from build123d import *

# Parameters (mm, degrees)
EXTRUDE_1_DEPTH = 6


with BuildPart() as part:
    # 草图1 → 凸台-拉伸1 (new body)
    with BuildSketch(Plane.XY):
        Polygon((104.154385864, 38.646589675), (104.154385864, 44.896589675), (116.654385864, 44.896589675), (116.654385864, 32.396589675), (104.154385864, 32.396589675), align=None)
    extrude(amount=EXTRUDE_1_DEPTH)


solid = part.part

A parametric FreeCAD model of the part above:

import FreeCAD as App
import Part
import Sketcher
from FreeCAD import Vector
Q = App.Units.Quantity

doc = App.newDocument("Part")
body = doc.addObject("PartDesign::Body", "Body")

# Sketch on XY plane
sketch1 = body.newObject("Sketcher::SketchObject", "Sketch")
sketch1.AttachmentSupport = (doc.getObject("XY_Plane"), [""])
sketch1.MapMode = "FlatFace"
sketch1.addGeometry([
    Part.LineSegment(Vector(104, 45, 0), Vector(104, 32, 0)),
    Part.LineSegment(Vector(104, 32, 0), Vector(117, 32, 0)),
    Part.LineSegment(Vector(117, 32, 0), Vector(117, 45, 0)),
    Part.LineSegment(Vector(117, 45, 0), Vector(104, 45, 0)),
], False)
sketch1.addConstraint([
    Sketcher.Constraint("Coincident", 0, 2, 1, 1),
    Sketcher.Constraint("Coincident", 1, 2, 2, 1),
    Sketcher.Constraint("Coincident", 2, 2, 3, 1),
    Sketcher.Constraint("Coincident", 3, 2, 0, 1),
    Sketcher.Constraint("Vertical", 0),
    Sketcher.Constraint("Horizontal", 1),
    Sketcher.Constraint("Vertical", 2),
    Sketcher.Constraint("Horizontal", 3),
    Sketcher.Constraint("Equal", 3, 0),
    Sketcher.Constraint("DistanceX", 1, 1, 1, 2, Q("12.5 mm")),
    Sketcher.Constraint("DistanceY", -1, 1, 0, 2, Q("32.39659 mm")),
    Sketcher.Constraint("DistanceX", -1, 1, 0, 2, Q("104.154386 mm")),
])
pad1 = body.newObject("PartDesign::Pad", "Pad")
pad1.Profile = sketch1
pad1.Length = 6

doc.recompute()
